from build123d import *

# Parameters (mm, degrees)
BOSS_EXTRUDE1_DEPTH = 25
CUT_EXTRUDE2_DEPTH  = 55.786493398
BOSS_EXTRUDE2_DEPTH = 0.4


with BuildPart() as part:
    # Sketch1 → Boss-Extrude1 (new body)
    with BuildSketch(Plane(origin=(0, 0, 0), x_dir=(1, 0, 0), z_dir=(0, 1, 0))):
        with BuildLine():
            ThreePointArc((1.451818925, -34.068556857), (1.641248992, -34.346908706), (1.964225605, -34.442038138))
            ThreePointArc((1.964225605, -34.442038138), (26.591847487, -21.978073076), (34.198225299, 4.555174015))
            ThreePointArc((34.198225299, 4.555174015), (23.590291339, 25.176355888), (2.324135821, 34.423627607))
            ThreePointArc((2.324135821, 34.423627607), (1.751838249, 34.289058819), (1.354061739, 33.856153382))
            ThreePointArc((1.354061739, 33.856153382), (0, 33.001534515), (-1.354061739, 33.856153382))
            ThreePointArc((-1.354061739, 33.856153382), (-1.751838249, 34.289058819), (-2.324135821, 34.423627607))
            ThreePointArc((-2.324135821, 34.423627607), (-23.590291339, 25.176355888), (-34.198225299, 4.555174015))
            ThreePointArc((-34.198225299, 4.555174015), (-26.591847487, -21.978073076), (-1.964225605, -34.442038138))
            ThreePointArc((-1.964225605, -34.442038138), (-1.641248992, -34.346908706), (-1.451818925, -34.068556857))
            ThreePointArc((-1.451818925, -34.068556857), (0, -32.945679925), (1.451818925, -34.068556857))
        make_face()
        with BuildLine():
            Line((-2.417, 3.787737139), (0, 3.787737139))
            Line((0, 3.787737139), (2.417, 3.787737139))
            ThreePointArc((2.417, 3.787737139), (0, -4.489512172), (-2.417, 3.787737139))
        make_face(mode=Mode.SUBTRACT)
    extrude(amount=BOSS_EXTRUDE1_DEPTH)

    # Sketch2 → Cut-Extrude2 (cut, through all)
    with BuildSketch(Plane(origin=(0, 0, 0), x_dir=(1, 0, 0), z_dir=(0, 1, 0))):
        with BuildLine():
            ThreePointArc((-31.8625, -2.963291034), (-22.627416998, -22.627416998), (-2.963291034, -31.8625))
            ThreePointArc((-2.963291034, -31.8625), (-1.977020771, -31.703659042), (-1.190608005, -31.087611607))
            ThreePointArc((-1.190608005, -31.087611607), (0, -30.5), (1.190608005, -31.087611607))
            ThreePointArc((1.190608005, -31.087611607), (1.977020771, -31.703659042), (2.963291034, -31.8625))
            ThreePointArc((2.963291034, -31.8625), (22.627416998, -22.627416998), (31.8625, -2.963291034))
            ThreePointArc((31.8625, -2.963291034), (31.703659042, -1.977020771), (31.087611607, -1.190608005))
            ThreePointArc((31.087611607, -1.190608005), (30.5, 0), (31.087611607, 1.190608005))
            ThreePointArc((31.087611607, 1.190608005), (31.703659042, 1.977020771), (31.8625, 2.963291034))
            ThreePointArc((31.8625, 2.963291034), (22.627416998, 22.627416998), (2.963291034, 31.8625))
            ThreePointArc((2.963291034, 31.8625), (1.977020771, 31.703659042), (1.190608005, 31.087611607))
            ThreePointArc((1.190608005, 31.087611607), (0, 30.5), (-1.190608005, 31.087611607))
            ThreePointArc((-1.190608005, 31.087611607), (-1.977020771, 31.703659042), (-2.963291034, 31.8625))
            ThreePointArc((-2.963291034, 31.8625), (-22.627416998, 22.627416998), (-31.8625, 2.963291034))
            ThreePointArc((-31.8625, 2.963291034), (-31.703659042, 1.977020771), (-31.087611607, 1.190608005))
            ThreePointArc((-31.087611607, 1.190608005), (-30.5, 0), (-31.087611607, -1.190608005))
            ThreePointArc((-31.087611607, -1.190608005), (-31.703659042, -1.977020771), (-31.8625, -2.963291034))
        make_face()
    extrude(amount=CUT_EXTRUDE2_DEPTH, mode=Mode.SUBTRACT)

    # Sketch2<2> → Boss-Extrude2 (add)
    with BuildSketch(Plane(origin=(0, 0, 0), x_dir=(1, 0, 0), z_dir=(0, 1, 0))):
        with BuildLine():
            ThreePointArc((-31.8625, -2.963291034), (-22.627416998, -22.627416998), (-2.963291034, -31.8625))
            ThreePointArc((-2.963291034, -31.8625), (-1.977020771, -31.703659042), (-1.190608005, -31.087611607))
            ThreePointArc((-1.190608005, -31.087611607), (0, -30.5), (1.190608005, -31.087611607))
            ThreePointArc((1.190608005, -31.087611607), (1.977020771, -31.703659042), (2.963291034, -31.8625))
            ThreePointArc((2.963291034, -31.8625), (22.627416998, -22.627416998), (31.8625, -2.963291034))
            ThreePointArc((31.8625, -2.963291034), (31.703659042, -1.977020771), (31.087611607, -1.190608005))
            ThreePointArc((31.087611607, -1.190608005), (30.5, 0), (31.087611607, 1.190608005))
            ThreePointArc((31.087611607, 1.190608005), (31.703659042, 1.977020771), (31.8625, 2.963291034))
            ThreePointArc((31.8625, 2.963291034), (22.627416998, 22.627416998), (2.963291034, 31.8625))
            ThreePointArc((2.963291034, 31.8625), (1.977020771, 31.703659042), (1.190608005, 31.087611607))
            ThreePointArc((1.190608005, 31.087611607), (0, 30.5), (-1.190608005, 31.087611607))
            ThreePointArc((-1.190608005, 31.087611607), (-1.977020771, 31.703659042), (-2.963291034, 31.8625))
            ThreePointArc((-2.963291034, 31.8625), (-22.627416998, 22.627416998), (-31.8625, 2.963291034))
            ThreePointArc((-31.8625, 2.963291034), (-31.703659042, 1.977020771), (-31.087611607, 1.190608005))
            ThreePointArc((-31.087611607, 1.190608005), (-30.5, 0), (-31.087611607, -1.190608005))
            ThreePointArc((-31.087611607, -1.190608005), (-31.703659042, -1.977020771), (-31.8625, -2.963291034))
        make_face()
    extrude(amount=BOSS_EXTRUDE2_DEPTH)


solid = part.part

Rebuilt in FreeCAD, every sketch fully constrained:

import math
import FreeCAD as App
import Part
import Sketcher
from FreeCAD import Vector

doc = App.newDocument("Part")
body = doc.addObject("PartDesign::Body", "Body")

# Sketch on XZ plane
sketch1 = body.newObject("Sketcher::SketchObject", "Sketch")
sketch1.AttachmentSupport = (doc.getObject("XZ_Plane"), [""])
sketch1.MapMode = "FlatFace"
sketch1.addGeometry([
    Part.ArcOfCircle(Part.Circle(Vector(1.9, 33.9, 0), Vector(0, 0, 1), 0.5), math.radians(87), math.radians(165)),  # 0
    Part.ArcOfCircle(Part.Circle(Vector(0, 0, 0), Vector(0, 0, 1), 34.5), math.radians(-8), math.radians(87)),  # 1
    Part.ArcOfCircle(Part.Circle(Vector(0, 0, 0), Vector(0, 0, 1), 34.5), math.radians(-86), math.radians(-8)),  # 2
    Part.ArcOfCircle(Part.Circle(Vector(2.3, -33.4, 0), Vector(0, 0, 1), 1), math.radians(-155), math.radians(-86)),  # 3
    Part.ArcOfCircle(Part.Circle(Vector(0, -34.5, 0), Vector(0, 0, 1), 1.5), math.radians(25), math.radians(155)),  # 4
    Part.ArcOfCircle(Part.Circle(Vector(-2.3, -33.4, 0), Vector(0, 0, 1), 1), math.radians(-94), math.radians(-25)),  # 5
    Part.ArcOfCircle(Part.Circle(Vector(0, 0, 0), Vector(0, 0, 1), 34.5), math.radians(-172), math.radians(-94)),  # 6
    Part.ArcOfCircle(Part.Circle(Vector(0, 0, 0), Vector(0, 0, 1), 34.5), math.radians(93), math.radians(188)),  # 7
    Part.ArcOfCircle(Part.Circle(Vector(-1.9, 33.9, 0), Vector(0, 0, 1), 0.5), math.radians(15), math.radians(93)),  # 8
    Part.ArcOfCircle(Part.Circle(Vector(0, 34.4, 0), Vector(0, 0, 1), 1.5), math.radians(-165), math.radians(-15)),  # 9
    Part.ArcOfCircle(Part.Circle(Vector(0, 0, 0), Vector(0, 0, 1), 4.5), math.radians(-57), math.radians(237)),  # 10
    Part.LineSegment(Vector(-2.4, -3.8, 0), Vector(2.4, -3.8, 0)),  # 11
], False)
sketch1.addConstraint([
    Sketcher.Constraint("Tangent", 0, 1, 1, 2),
    Sketcher.Constraint("Tangent", 1, 1, 2, 2),
    Sketcher.Constraint("Tangent", 2, 1, 3, 2),
    Sketcher.Constraint("Tangent", 3, 1, 4, 1),
    Sketcher.Constraint("Tangent", 4, 2, 5, 2),
    Sketcher.Constraint("Tangent", 5, 1, 6, 2),
    Sketcher.Constraint("Tangent", 6, 1, 7, 2),
    Sketcher.Constraint("Tangent", 7, 1, 8, 2),
    Sketcher.Constraint("Tangent", 8, 1, 9, 1),
    Sketcher.Constraint("Tangent", 9, 2, 0, 2),
    Sketcher.Constraint("Coincident", 10, 1, 11, 2),
    Sketcher.Constraint("Coincident", 11, 1, 10, 2),
    Sketcher.Constraint("Horizontal", 11),
    Sketcher.Constraint("Coincident", 6, 3, 1, 3),
    Sketcher.Constraint("Coincident", 10, 3, 1, 3),
    Sketcher.Constraint("Equal", 1, 2),
    Sketcher.Constraint("Equal", 3, 5),
    Sketcher.Constraint("Equal", 2, 6),
    Sketcher.Constraint("Equal", 6, 7),
    Sketcher.Constraint("Equal", 0, 8),
    Sketcher.Constraint("Equal", 4, 9),
    Sketcher.Constraint("Symmetric", 3, 3, 5, 3, -2),
    Sketcher.Constraint("PointOnObject", 9, 3, -2),
    Sketcher.Constraint("Horizontal", 1, 1, 6, 1),
    Sketcher.Constraint("Radius", 3, 1.0),
    Sketcher.Constraint("Radius", 0, 0.5),
    Sketcher.Constraint("Radius", 1, 34.5),
    Sketcher.Constraint("Radius", 4, 1.5),
    Sketcher.Constraint("DistanceX", 11, 1, 11, 2, 4.834),
    Sketcher.Constraint("DistanceY", 1, 3, -1, 1, 0.002001),
    Sketcher.Constraint("Radius", 10, 4.491513),
    Sketcher.Constraint("DistanceY", 3, 3, -1, 1, 33.425899),
    Sketcher.Constraint("DistanceX", -1, 1, 0, 3, 1.935759),
    Sketcher.Constraint("DistanceX", -1, 1, 1, 1, 34.198225),
])
pad1 = body.newObject("PartDesign::Pad", "Pad")
pad1.Profile = sketch1
pad1.Length = 25
pad1.Reversed = True

# Sketch on XZ plane
sketch2 = body.newObject("Sketcher::SketchObject", "Sketch001")
sketch2.AttachmentSupport = (doc.getObject("XZ_Plane"), [""])
sketch2.MapMode = "FlatFace"
sketch2.addGeometry([
    Part.ArcOfCircle(Part.Circle(Vector(0, 0, 0), Vector(0, 0, 1), 32), math.radians(95), math.radians(175)),  # 0
    Part.ArcOfCircle(Part.Circle(Vector(-2.8, 29.9, 0), Vector(0, 0, 1), 2), math.radians(37), math.radians(95)),  # 1
    Part.ArcOfCircle(Part.Circle(Vector(0, 32, 0), Vector(0, 0, 1), 1.5), math.radians(-143), math.radians(-37)),  # 2
    Part.ArcOfCircle(Part.Circle(Vector(2.8, 29.9, 0), Vector(0, 0, 1), 2), math.radians(85), math.radians(143)),  # 3
    Part.ArcOfCircle(Part.Circle(Vector(0, 0, 0), Vector(0, 0, 1), 32), math.radians(5), math.radians(85)),  # 4
    Part.ArcOfCircle(Part.Circle(Vector(29.9, 2.8, 0), Vector(0, 0, 1), 2), math.radians(-53), math.radians(5)),  # 5
    Part.ArcOfCircle(Part.Circle(Vector(32, 0, 0), Vector(0, 0, 1), 1.5), math.radians(127), math.radians(233)),  # 6
    Part.ArcOfCircle(Part.Circle(Vector(29.9, -2.8, 0), Vector(0, 0, 1), 2), math.radians(-5), math.radians(53)),  # 7
    Part.ArcOfCircle(Part.Circle(Vector(0, 0, 0), Vector(0, 0, 1), 32), math.radians(-85), math.radians(-5)),  # 8
    Part.ArcOfCircle(Part.Circle(Vector(2.8, -29.9, 0), Vector(0, 0, 1), 2), math.radians(-143), math.radians(-85)),  # 9
    Part.ArcOfCircle(Part.Circle(Vector(0, -32, 0), Vector(0, 0, 1), 1.5), math.radians(37), math.radians(143)),  # 10
    Part.ArcOfCircle(Part.Circle(Vector(-2.8, -29.9, 0), Vector(0, 0, 1), 2), math.radians(-95), math.radians(-37)),  # 11
    Part.ArcOfCircle(Part.Circle(Vector(0, 0, 0), Vector(0, 0, 1), 32), math.radians(-175), math.radians(-95)),  # 12
    Part.ArcOfCircle(Part.Circle(Vector(-29.9, -2.8, 0), Vector(0, 0, 1), 2), math.radians(127), math.radians(185)),  # 13
    Part.ArcOfCircle(Part.Circle(Vector(-32, 0, 0), Vector(0, 0, 1), 1.5), math.radians(-53), math.radians(53)),  # 14
    Part.ArcOfCircle(Part.Circle(Vector(-29.9, 2.8, 0), Vector(0, 0, 1), 2), math.radians(175), math.radians(233)),  # 15
], False)
sketch2.addConstraint([
    Sketcher.Constraint("Tangent", 0, 1, 1, 2),
    Sketcher.Constraint("Tangent", 1, 1, 2, 1),
    Sketcher.Constraint("Tangent", 2, 2, 3, 2),
    Sketcher.Constraint("Tangent", 3, 1, 4, 2),
    Sketcher.Constraint("Tangent", 4, 1, 5, 2),
    Sketcher.Constraint("Tangent", 5, 1, 6, 1),
    Sketcher.Constraint("Tangent", 6, 2, 7, 2),
    Sketcher.Constraint("Tangent", 7, 1, 8, 2),
    Sketcher.Constraint("Tangent", 8, 1, 9, 2),
    Sketcher.Constraint("Tangent", 9, 1, 10, 1),
    Sketcher.Constraint("Tangent", 10, 2, 11, 2),
    Sketcher.Constraint("Tangent", 11, 1, 12, 2),
    Sketcher.Constraint("Tangent", 12, 1, 13, 2),
    Sketcher.Constraint("Tangent", 13, 1, 14, 1),
    Sketcher.Constraint("Tangent", 14, 2, 15, 2),
    Sketcher.Constraint("Tangent", 15, 1, 0, 2),
    Sketcher.Constraint("Coincident", 0, 3, -1, 1),
    Sketcher.Constraint("Coincident", 4, 3, -1, 1),
    Sketcher.Constraint("Coincident", 8, 3, -1, 1),
    Sketcher.Constraint("Coincident", 12, 3, -1, 1),
    Sketcher.Constraint("Equal", 1, 3),
    Sketcher.Constraint("Equal", 0, 4),
    Sketcher.Constraint("Equal", 3, 5),
    Sketcher.Constraint("Equal", 2, 6),
    Sketcher.Constraint("Equal", 5, 7),
    Sketcher.Constraint("Equal", 4, 8),
    Sketcher.Constraint("Equal", 7, 9),
    Sketcher.Constraint("Equal", 6, 10),
    Sketcher.Constraint("Equal", 9, 11),
    Sketcher.Constraint("Equal", 8, 12),
    Sketcher.Constraint("Equal", 11, 13),
    Sketcher.Constraint("Equal", 10, 14),
    Sketcher.Constraint("Equal", 13, 15),
    Sketcher.Constraint("Symmetric", 2, 3, 10, 3, -1, 1),
    Sketcher.Constraint("Symmetric", 6, 3, 14, 3, -1, 1),
    Sketcher.Constraint("PointOnObject", 2, 3, -2),
    Sketcher.Constraint("PointOnObject", 6, 3, -1),
    Sketcher.Constraint("Radius", 0, 32.0),
    Sketcher.Constraint("Radius", 1, 2.0),
    Sketcher.Constraint("Radius", 2, 1.5),
    Sketcher.Constraint("DistanceY", -1, 1, 2, 3, 32.0),
    Sketcher.Constraint("DistanceX", -1, 1, 6, 3, 32.0),
])
pocket1 = body.newObject("PartDesign::Pocket", "Pocket")
pocket1.Profile = sketch2
pocket1.Type = "ThroughAll"

# Sketch on XZ plane
sketch3 = body.newObject("Sketcher::SketchObject", "Sketch002")
sketch3.AttachmentSupport = (doc.getObject("XZ_Plane"), [""])
sketch3.MapMode = "FlatFace"
sketch3.addGeometry([
    Part.ArcOfCircle(Part.Circle(Vector(0, 0, 0), Vector(0, 0, 1), 32), math.radians(95), math.radians(175)),  # 0
    Part.ArcOfCircle(Part.Circle(Vector(-2.8, 29.9, 0), Vector(0, 0, 1), 2), math.radians(37), math.radians(95)),  # 1
    Part.ArcOfCircle(Part.Circle(Vector(0, 32, 0), Vector(0, 0, 1), 1.5), math.radians(-143), math.radians(-37)),  # 2
    Part.ArcOfCircle(Part.Circle(Vector(2.8, 29.9, 0), Vector(0, 0, 1), 2), math.radians(85), math.radians(143)),  # 3
    Part.ArcOfCircle(Part.Circle(Vector(0, 0, 0), Vector(0, 0, 1), 32), math.radians(5), math.radians(85)),  # 4
    Part.ArcOfCircle(Part.Circle(Vector(29.9, 2.8, 0), Vector(0, 0, 1), 2), math.radians(-53), math.radians(5)),  # 5
    Part.ArcOfCircle(Part.Circle(Vector(32, 0, 0), Vector(0, 0, 1), 1.5), math.radians(127), math.radians(233)),  # 6
    Part.ArcOfCircle(Part.Circle(Vector(29.9, -2.8, 0), Vector(0, 0, 1), 2), math.radians(-5), math.radians(53)),  # 7
    Part.ArcOfCircle(Part.Circle(Vector(0, 0, 0), Vector(0, 0, 1), 32), math.radians(-85), math.radians(-5)),  # 8
    Part.ArcOfCircle(Part.Circle(Vector(2.8, -29.9, 0), Vector(0, 0, 1), 2), math.radians(-143), math.radians(-85)),  # 9
    Part.ArcOfCircle(Part.Circle(Vector(0, -32, 0), Vector(0, 0, 1), 1.5), math.radians(37), math.radians(143)),  # 10
    Part.ArcOfCircle(Part.Circle(Vector(-2.8, -29.9, 0), Vector(0, 0, 1), 2), math.radians(-95), math.radians(-37)),  # 11
    Part.ArcOfCircle(Part.Circle(Vector(0, 0, 0), Vector(0, 0, 1), 32), math.radians(-175), math.radians(-95)),  # 12
    Part.ArcOfCircle(Part.Circle(Vector(-29.9, -2.8, 0), Vector(0, 0, 1), 2), math.radians(127), math.radians(185)),  # 13
    Part.ArcOfCircle(Part.Circle(Vector(-32, 0, 0), Vector(0, 0, 1), 1.5), math.radians(-53), math.radians(53)),  # 14
    Part.ArcOfCircle(Part.Circle(Vector(-29.9, 2.8, 0), Vector(0, 0, 1), 2), math.radians(175), math.radians(233)),  # 15
], False)
sketch3.addConstraint([
    Sketcher.Constraint("Tangent", 0, 1, 1, 2),
    Sketcher.Constraint("Tangent", 1, 1, 2, 1),
    Sketcher.Constraint("Tangent", 2, 2, 3, 2),
    Sketcher.Constraint("Tangent", 3, 1, 4, 2),
    Sketcher.Constraint("Tangent", 4, 1, 5, 2),
    Sketcher.Constraint("Tangent", 5, 1, 6, 1),
    Sketcher.Constraint("Tangent", 6, 2, 7, 2),
    Sketcher.Constraint("Tangent", 7, 1, 8, 2),
    Sketcher.Constraint("Tangent", 8, 1, 9, 2),
    Sketcher.Constraint("Tangent", 9, 1, 10, 1),
    Sketcher.Constraint("Tangent", 10, 2, 11, 2),
    Sketcher.Constraint("Tangent", 11, 1, 12, 2),
    Sketcher.Constraint("Tangent", 12, 1, 13, 2),
    Sketcher.Constraint("Tangent", 13, 1, 14, 1),
    Sketcher.Constraint("Tangent", 14, 2, 15, 2),
    Sketcher.Constraint("Tangent", 15, 1, 0, 2),
    Sketcher.Constraint("Coincident", 0, 3, -1, 1),
    Sketcher.Constraint("Coincident", 4, 3, -1, 1),
    Sketcher.Constraint("Coincident", 8, 3, -1, 1),
    Sketcher.Constraint("Coincident", 12, 3, -1, 1),
    Sketcher.Constraint("Equal", 1, 3),
    Sketcher.Constraint("Equal", 0, 4),
    Sketcher.Constraint("Equal", 3, 5),
    Sketcher.Constraint("Equal", 2, 6),
    Sketcher.Constraint("Equal", 5, 7),
    Sketcher.Constraint("Equal", 4, 8),
    Sketcher.Constraint("Equal", 7, 9),
    Sketcher.Constraint("Equal", 6, 10),
    Sketcher.Constraint("Equal", 9, 11),
    Sketcher.Constraint("Equal", 8, 12),
    Sketcher.Constraint("Equal", 11, 13),
    Sketcher.Constraint("Equal", 10, 14),
    Sketcher.Constraint("Equal", 13, 15),
    Sketcher.Constraint("Symmetric", 2, 3, 10, 3, -1, 1),
    Sketcher.Constraint("Symmetric", 6, 3, 14, 3, -1, 1),
    Sketcher.Constraint("PointOnObject", 2, 3, -2),
    Sketcher.Constraint("PointOnObject", 6, 3, -1),
    Sketcher.Constraint("Radius", 0, 32.0),
    Sketcher.Constraint("Radius", 1, 2.0),
    Sketcher.Constraint("Radius", 2, 1.5),
    Sketcher.Constraint("DistanceY", -1, 1, 2, 3, 32.0),
    Sketcher.Constraint("DistanceX", -1, 1, 6, 3, 32.0),
])
pad2 = body.newObject("PartDesign::Pad", "Pad001")
pad2.Profile = sketch3
pad2.Length = 0.4
pad2.Reversed = True

doc.recompute()
